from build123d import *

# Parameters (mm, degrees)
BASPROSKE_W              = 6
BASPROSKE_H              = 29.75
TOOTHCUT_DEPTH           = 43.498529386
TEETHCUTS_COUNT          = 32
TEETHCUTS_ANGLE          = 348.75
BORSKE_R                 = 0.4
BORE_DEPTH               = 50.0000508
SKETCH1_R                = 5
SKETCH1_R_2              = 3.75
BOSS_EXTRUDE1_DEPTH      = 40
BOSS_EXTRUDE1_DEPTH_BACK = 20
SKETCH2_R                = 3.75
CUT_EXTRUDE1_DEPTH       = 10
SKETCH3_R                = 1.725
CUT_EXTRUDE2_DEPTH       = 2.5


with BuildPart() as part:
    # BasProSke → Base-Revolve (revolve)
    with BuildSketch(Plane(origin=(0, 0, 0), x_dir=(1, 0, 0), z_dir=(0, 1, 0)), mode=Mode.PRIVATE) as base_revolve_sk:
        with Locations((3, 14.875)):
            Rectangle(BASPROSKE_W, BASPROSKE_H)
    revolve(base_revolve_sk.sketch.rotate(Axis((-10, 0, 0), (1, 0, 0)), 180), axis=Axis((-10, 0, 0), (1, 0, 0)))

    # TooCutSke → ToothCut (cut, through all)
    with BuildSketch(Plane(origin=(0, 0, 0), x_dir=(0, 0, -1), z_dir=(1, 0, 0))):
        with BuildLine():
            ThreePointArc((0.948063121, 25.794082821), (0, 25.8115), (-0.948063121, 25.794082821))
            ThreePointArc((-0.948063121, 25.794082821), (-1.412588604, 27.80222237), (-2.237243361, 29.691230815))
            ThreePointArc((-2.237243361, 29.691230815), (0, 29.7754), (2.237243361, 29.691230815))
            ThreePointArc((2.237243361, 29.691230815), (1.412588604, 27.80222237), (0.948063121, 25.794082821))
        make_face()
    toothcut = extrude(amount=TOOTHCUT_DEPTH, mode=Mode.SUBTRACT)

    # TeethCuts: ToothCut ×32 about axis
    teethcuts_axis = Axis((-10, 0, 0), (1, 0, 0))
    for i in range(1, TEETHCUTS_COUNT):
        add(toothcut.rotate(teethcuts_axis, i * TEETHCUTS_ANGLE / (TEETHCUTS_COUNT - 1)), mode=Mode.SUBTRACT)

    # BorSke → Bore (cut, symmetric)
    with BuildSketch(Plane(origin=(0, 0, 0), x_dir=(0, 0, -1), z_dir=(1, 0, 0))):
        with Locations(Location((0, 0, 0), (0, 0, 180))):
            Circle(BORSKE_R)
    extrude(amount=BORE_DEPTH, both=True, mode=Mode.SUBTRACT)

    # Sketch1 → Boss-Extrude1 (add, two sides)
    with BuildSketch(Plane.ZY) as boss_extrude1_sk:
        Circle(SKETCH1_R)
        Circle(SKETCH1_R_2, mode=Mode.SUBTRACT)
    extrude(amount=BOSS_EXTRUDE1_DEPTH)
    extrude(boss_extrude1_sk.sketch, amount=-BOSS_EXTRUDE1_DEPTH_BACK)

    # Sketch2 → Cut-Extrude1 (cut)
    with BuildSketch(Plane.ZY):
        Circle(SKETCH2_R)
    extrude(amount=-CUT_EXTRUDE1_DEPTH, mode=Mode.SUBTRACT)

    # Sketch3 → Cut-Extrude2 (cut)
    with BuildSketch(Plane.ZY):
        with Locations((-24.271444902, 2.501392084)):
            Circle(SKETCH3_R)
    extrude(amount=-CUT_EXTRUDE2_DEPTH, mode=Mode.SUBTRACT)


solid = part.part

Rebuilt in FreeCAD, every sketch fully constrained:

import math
import FreeCAD as App
import Part
import Sketcher
from FreeCAD import Vector
Q = App.Units.Quantity


def add_polygon(sketch, points):
    """Adds a closed chain of lines whose ends are joined by coincident constraints."""
    first, n = sketch.GeometryCount, len(points)
    for a, b in zip(points, points[1:] + points[:1]):
        sketch.addGeometry(Part.LineSegment(App.Vector(*a, 0), App.Vector(*b, 0)), False)
    for i in range(n):
        sketch.addConstraint(Sketcher.Constraint("Coincident", first + i, 2, first + (i + 1) % n, 1))

doc = App.newDocument("Part")
body = doc.addObject("PartDesign::Body", "Body")

# Sketch on XZ plane
sketch1 = doc.addObject("Sketcher::SketchObject", "Sketch")
body.addObject(sketch1)
sketch1.AttachmentSupport = (doc.XZ_Plane, [""])
sketch1.MapMode = "FlatFace"
add_polygon(sketch1, [(0, -29.75), (0, 0), (6, 0), (6, -29.75)])  # lines 0-3
sketch1.addConstraint([
    Sketcher.Constraint("Vertical", 0),
    Sketcher.Constraint("Horizontal", 1),
    Sketcher.Constraint("Vertical", 2),
    Sketcher.Constraint("Horizontal", 3),
    Sketcher.Constraint("Coincident", 0, 2, -1, 1),
    Sketcher.Constraint("DistanceX", 1, 1, 1, 2, Q("6 mm")),
    Sketcher.Constraint("DistanceY", 0, 1, 0, 2, Q("29.75 mm")),
])
revolution = doc.addObject("PartDesign::Revolution", "Revolution")
body.addObject(revolution)
revolution.Profile = sketch1
revolution.ReferenceAxis = (sketch1, ["H_Axis"])
revolution.Angle = 360

# Sketch on YZ plane
sketch2 = doc.addObject("Sketcher::SketchObject", "Sketch001")
body.addObject(sketch2)
sketch2.AttachmentSupport = (doc.YZ_Plane, [""])
sketch2.MapMode = "FlatFace"
sketch2.addGeometry([
    Part.ArcOfCircle(Part.Circle(Vector(0, 0, 0), Vector(0, 0, 1), 25.8115), math.radians(-2.104962), math.radians(2.104962)),
    Part.ArcOfCircle(Part.Circle(Vector(24.284715, -12.045892, 0), Vector(0, 0, 1), 11.2), math.radians(61.136499), math.radians(82.254972)),
    Part.ArcOfCircle(Part.Circle(Vector(0, 0, 0), Vector(0, 0, 1), 29.7754), math.radians(-4.309112), math.radians(4.309112)),
    Part.ArcOfCircle(Part.Circle(Vector(24.284715, 12.045892, 0), Vector(0, 0, 1), 11.2), math.radians(-82.254972), math.radians(-61.136499)),
], False)
sketch2.addConstraint([
    Sketcher.Constraint("Coincident", 0, 1, 1, 2),
    Sketcher.Constraint("Coincident", 1, 1, 2, 1),
    Sketcher.Constraint("Coincident", 2, 2, 3, 2),
    Sketcher.Constraint("Coincident", 3, 1, 0, 2),
    Sketcher.Constraint("Coincident", 0, 3, -1, 1),
    Sketcher.Constraint("Coincident", 2, 3, -1, 1),
    Sketcher.Constraint("Equal", 1, 3),
    Sketcher.Constraint("Symmetric", 1, 3, 3, 3, -1),
    Sketcher.Constraint("Radius", 1, Q("11.2 mm")),
    Sketcher.Constraint("Radius", 0, Q("25.8115 mm")),
    Sketcher.Constraint("Radius", 2, Q("29.7754 mm")),
    Sketcher.Constraint("DistanceX", -1, 1, 1, 1, Q("29.691231 mm")),
    Sketcher.Constraint("DistanceY", 1, 3, 0, 1, Q("11.097829 mm")),
])
pocket1 = doc.addObject("PartDesign::Pocket", "Pocket")
body.addObject(pocket1)
pocket1.Profile = sketch2
pocket1.Type = "ThroughAll"
pocket1.Reversed = True
doc.recompute()

polarpattern = doc.addObject("PartDesign::PolarPattern", "PolarPattern")
body.addObject(polarpattern)
polarpattern.Originals = [pocket1]
polarpattern.Axis = (doc.X_Axis, [""])
polarpattern.Angle = 360
polarpattern.Occurrences = 32
body.Tip = polarpattern

# Sketch on YZ plane
sketch3 = doc.addObject("Sketcher::SketchObject", "Sketch002")
body.addObject(sketch3)
sketch3.AttachmentSupport = (doc.YZ_Plane, [""])
sketch3.MapMode = "FlatFace"
sketch3.addGeometry(Part.Circle(Vector(0, 0, 0), Vector(0, 0, 1), 0.4), False)
sketch3.addConstraint([
    Sketcher.Constraint("Coincident", 0, 3, -1, 1),
    Sketcher.Constraint("Diameter", 0, Q("0.8 mm")),
])
pocket2 = doc.addObject("PartDesign::Pocket", "Pocket001")
body.addObject(pocket2)
pocket2.Profile = sketch3
pocket2.Length = 100.000102
pocket2.Midplane = True

# Sketch on YZ plane
sketch4 = doc.addObject("Sketcher::SketchObject", "Sketch003")
body.addObject(sketch4)
sketch4.AttachmentSupport = (doc.YZ_Plane, [""])
sketch4.MapMode = "FlatFace"
sketch4.addGeometry([
    Part.Circle(Vector(0, 0, 0), Vector(0, 0, 1), 5),
    Part.Circle(Vector(0, 0, 0), Vector(0, 0, 1), 3.75),
], False)
sketch4.addConstraint([
    Sketcher.Constraint("Coincident", 0, 3, -1, 1),
    Sketcher.Constraint("Coincident", 1, 3, -1, 1),
    Sketcher.Constraint("Diameter", 0, Q("10 mm")),
    Sketcher.Constraint("Diameter", 1, Q("7.5 mm")),
])
pad1 = doc.addObject("PartDesign::Pad", "Pad")
body.addObject(pad1)
pad1.Profile = sketch4
pad1.Type = "TwoLengths"
pad1.Length = 40
pad1.Length2 = 20
pad1.Reversed = True

# Sketch on YZ plane
sketch5 = doc.addObject("Sketcher::SketchObject", "Sketch004")
body.addObject(sketch5)
sketch5.AttachmentSupport = (doc.YZ_Plane, [""])
sketch5.MapMode = "FlatFace"
sketch5.addGeometry(Part.Circle(Vector(0, 0, 0), Vector(0, 0, 1), 3.75), False)
sketch5.addConstraint([
    Sketcher.Constraint("Coincident", 0, 3, -1, 1),
    Sketcher.Constraint("Diameter", 0, Q("7.5 mm")),
])
pocket3 = doc.addObject("PartDesign::Pocket", "Pocket002")
body.addObject(pocket3)
pocket3.Profile = sketch5
pocket3.Length = 10
pocket3.Reversed = True

# Sketch on YZ plane
sketch6 = doc.addObject("Sketcher::SketchObject", "Sketch005")
body.addObject(sketch6)
sketch6.AttachmentSupport = (doc.YZ_Plane, [""])
sketch6.MapMode = "FlatFace"
sketch6.addGeometry(Part.Circle(Vector(2.501392, -24.271445, 0), Vector(0, 0, 1), 1.725), False)
sketch6.addConstraint([
    Sketcher.Constraint("Diameter", 0, Q("3.45 mm")),
    Sketcher.Constraint("DistanceX", -1, 1, 0, 3, Q("2.501392 mm")),
    Sketcher.Constraint("DistanceY", 0, 3, -1, 1, Q("24.271445 mm")),
])
pocket4 = doc.addObject("PartDesign::Pocket", "Pocket003")
body.addObject(pocket4)
pocket4.Profile = sketch6
pocket4.Length = 2.5
pocket4.Reversed = True

doc.recompute()
